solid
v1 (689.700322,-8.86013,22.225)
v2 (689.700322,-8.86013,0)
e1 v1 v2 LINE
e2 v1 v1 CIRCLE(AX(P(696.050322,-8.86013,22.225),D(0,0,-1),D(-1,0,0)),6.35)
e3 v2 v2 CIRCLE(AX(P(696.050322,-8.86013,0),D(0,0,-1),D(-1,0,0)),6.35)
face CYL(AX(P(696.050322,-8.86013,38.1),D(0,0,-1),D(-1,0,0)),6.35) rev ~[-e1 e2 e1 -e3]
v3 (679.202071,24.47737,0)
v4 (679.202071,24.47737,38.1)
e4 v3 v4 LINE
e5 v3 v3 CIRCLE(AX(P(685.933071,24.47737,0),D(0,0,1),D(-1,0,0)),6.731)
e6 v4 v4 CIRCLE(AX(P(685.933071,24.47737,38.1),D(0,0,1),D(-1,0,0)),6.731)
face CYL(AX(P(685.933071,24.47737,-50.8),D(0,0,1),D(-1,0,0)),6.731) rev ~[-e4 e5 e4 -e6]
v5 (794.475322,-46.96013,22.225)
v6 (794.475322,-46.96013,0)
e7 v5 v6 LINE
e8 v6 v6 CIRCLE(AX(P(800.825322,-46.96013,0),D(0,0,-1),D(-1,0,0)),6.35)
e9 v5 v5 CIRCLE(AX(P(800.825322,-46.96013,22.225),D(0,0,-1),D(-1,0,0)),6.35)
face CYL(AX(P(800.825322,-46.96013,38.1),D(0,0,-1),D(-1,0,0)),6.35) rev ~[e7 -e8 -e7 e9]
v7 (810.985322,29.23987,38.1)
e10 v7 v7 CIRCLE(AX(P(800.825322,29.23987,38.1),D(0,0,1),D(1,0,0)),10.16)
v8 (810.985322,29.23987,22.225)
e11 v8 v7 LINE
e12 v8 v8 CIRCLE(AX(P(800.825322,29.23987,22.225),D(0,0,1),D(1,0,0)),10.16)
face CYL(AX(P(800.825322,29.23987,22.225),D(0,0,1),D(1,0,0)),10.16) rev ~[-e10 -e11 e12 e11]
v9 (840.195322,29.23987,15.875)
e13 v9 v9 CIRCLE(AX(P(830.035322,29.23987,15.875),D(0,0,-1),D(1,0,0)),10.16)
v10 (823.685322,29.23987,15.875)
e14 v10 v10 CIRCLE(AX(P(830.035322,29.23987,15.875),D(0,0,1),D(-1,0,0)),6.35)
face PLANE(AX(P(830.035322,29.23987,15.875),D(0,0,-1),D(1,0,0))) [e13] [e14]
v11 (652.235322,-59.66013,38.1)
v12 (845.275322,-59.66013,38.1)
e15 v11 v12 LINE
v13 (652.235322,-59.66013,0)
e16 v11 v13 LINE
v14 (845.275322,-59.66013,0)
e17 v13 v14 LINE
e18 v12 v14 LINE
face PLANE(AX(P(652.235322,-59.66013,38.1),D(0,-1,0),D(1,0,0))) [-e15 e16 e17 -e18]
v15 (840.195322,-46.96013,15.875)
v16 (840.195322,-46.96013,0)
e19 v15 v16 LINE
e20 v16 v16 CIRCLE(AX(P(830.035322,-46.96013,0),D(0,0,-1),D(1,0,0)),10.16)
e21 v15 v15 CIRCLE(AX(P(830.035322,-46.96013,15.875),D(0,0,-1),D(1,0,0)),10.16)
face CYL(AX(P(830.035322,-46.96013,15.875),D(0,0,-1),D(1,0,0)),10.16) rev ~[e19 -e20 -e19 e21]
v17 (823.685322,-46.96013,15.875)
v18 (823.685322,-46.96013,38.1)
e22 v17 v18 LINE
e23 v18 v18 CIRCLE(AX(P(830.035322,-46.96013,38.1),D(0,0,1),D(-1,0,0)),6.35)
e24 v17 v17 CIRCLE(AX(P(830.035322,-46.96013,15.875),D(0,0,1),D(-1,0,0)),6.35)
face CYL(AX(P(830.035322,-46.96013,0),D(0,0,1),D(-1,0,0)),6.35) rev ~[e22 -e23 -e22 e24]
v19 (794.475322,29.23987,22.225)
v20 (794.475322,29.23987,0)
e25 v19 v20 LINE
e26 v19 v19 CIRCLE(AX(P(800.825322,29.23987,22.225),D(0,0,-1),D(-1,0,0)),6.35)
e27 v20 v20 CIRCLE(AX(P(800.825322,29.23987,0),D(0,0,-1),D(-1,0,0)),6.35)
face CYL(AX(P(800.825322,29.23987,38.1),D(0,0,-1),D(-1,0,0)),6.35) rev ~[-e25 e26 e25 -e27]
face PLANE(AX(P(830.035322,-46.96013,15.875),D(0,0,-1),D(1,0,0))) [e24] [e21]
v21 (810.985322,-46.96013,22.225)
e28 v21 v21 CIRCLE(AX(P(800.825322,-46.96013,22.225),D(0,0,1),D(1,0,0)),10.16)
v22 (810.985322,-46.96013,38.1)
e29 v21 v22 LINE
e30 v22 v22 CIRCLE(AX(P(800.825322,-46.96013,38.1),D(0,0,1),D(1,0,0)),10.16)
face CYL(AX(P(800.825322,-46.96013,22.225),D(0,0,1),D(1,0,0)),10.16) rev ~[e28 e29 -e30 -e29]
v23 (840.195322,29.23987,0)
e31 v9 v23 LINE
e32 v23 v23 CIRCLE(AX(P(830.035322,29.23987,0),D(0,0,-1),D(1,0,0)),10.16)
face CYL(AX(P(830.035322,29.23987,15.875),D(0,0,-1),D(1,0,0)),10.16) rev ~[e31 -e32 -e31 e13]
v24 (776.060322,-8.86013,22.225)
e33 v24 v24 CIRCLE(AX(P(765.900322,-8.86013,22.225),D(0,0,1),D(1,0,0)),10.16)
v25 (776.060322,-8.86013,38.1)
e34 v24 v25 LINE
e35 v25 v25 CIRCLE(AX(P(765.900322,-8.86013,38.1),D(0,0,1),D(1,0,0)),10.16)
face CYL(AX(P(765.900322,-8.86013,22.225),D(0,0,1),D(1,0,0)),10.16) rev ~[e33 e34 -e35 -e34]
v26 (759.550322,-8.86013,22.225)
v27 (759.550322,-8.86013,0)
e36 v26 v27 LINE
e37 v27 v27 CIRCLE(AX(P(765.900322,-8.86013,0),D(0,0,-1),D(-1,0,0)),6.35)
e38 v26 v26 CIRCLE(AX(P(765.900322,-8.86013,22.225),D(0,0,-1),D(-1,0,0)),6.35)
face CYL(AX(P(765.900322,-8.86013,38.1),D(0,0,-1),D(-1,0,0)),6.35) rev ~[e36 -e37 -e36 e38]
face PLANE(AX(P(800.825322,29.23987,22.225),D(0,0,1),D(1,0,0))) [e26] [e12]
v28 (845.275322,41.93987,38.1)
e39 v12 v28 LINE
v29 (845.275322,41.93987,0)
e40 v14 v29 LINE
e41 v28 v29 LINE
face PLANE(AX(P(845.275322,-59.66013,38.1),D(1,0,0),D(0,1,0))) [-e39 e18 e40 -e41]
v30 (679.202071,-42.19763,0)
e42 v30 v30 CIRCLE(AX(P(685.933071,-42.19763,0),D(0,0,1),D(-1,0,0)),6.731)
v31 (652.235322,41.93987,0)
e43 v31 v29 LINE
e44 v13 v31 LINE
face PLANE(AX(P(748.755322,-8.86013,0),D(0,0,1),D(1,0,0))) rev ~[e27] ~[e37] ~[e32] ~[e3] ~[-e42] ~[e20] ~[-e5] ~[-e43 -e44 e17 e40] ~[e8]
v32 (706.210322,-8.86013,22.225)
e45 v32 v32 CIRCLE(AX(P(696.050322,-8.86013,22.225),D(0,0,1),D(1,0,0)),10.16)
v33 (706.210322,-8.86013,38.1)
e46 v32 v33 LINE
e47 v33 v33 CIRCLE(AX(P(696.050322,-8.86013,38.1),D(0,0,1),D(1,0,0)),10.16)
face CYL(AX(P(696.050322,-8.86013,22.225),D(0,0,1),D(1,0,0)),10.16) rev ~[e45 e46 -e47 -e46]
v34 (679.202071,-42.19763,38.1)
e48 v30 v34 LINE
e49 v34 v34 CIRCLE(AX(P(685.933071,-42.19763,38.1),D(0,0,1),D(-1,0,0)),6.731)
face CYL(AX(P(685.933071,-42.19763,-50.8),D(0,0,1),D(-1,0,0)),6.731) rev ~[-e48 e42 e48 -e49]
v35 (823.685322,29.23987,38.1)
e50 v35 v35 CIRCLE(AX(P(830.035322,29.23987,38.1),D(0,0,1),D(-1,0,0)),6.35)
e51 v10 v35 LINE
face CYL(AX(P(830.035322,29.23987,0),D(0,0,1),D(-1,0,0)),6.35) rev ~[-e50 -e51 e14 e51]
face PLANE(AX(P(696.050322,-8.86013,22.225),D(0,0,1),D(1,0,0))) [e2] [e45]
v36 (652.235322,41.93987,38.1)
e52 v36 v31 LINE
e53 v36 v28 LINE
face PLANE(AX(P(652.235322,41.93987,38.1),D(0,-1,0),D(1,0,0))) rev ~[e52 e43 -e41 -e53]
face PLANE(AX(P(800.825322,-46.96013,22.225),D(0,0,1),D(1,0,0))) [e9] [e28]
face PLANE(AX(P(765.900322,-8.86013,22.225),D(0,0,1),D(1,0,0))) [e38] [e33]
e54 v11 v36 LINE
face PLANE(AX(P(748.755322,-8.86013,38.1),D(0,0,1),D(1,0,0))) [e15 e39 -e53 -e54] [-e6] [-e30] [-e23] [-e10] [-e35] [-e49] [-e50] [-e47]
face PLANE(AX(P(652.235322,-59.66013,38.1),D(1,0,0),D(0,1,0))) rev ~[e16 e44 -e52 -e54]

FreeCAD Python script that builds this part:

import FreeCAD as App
import Part
import Sketcher

V = App.Vector
Q = App.Units.Quantity

doc = App.newDocument("Part")
body = doc.addObject("PartDesign::Body", "Body")

sketch1 = doc.addObject("Sketcher::SketchObject", "Sketch")
body.addObject(sketch1)
sketch1.AttachmentSupport = (doc.XY_Plane, [""])
sketch1.MapMode = "FlatFace"
sketch1.addGeometry([
    Part.LineSegment(V(652, 42, 0), V(652, -60, 0)),
    Part.LineSegment(V(652, -60, 0), V(845, -60, 0)),
    Part.LineSegment(V(845, -60, 0), V(845, 42, 0)),
    Part.LineSegment(V(845, 42, 0), V(652, 42, 0)),
], False)
sketch1.addConstraint([
    Sketcher.Constraint("Coincident", 0, 2, 1, 1),
    Sketcher.Constraint("Coincident", 1, 2, 2, 1),
    Sketcher.Constraint("Coincident", 2, 2, 3, 1),
    Sketcher.Constraint("Coincident", 3, 2, 0, 1),
    Sketcher.Constraint("Vertical", 0),
    Sketcher.Constraint("Horizontal", 1),
    Sketcher.Constraint("Vertical", 2),
    Sketcher.Constraint("Horizontal", 3),
    Sketcher.Constraint("DistanceY", 0, 2, 0, 1, Q("4 in")),
    Sketcher.Constraint("DistanceX", 1, 1, 1, 2, Q("7.6 in")),
    Sketcher.Constraint("DistanceY", 0, 2, -1, 1, Q("59.66013 mm")),
    Sketcher.Constraint("DistanceX", -1, 1, 0, 2, Q("652.235322 mm")),
])
pad1 = doc.addObject("PartDesign::Pad", "Pad")
body.addObject(pad1)
pad1.Profile = sketch1
pad1.Length = Q("1.5 in")
pad1.Reversed = True

sketch2 = doc.addObject("Sketcher::SketchObject", "Sketch001")
body.addObject(sketch2)
sketch2.AttachmentSupport = (doc.XY_Plane, [""])
sketch2.MapMode = "FlatFace"
sketch2.addGeometry([
    Part.Circle(V(801, 29, 0), V(0, 0, 1), 6),
    Part.Circle(V(801, -47, 0), V(0, 0, 1), 6),
    Part.Circle(V(766, -9, 0), V(0, 0, 1), 6),
    Part.Circle(V(696, -9, 0), V(0, 0, 1), 6),
], False)
sketch2.addConstraint([
    Sketcher.Constraint("Equal", 0, 1),
    Sketcher.Constraint("Equal", 1, 2),
    Sketcher.Constraint("Equal", 2, 3),
    Sketcher.Constraint("Horizontal", 2, 3, 3, 3),
    Sketcher.Constraint("Vertical", 0, 3, 1, 3),
    Sketcher.Constraint("Diameter", 0, Q("0.5 in")),
    Sketcher.Constraint("DistanceY", 1, 3, 0, 3, Q("3 in")),
    Sketcher.Constraint("DistanceY", 2, 3, 0, 3, Q("1.5 in")),
    Sketcher.Constraint("DistanceX", 3, 3, 2, 3, Q("2.75 in")),
    Sketcher.Constraint("DistanceX", 2, 3, 0, 3, Q("1.375 in")),
    Sketcher.Constraint("DistanceY", -1, 1, 0, 3, Q("29.23987 mm")),
    Sketcher.Constraint("DistanceX", -1, 1, 0, 3, Q("800.825322 mm")),
])
doc.recompute()
hole = doc.addObject("PartDesign::Hole", "Hole")
body.addObject(hole)
hole.Profile = sketch2
hole.ThreadType = "None"
hole.Diameter = Q("0.5 in")
hole.DepthType = "Dimension"
hole.Depth = Q("2 in")
hole.DrillPoint = "Angled"
hole.DrillPointAngle = 118
hole.HoleCutType = "Counterbore"
hole.HoleCutDiameter = Q("0.8 in")
hole.HoleCutDepth = Q("0.625 in")
body2 = doc.addObject("PartDesign::Body", "Body001")
doc.recompute()

body.Placement = App.Placement(V(0, 0, 38.1), App.Rotation(V(0, 0, 1), 0))
boolean = doc.addObject("PartDesign::Boolean", "Boolean")
body2.addObject(boolean)
boolean.Type = "Fuse"
boolean.addObjects([body])

sketch3 = doc.addObject("Sketcher::SketchObject", "Sketch002")
body2.addObject(sketch3)
sketch3.AttachmentSupport = (doc.getObject("XY_Plane001"), [""])
sketch3.MapMode = "FlatFace"
sketch3.addGeometry([
    Part.Circle(V(686, 24, 0), V(0, 0, 1), 7),
    Part.Circle(V(686, -42, 0), V(0, 0, 1), 7),
], False)
sketch3.addConstraint([
    Sketcher.Constraint("Equal", 0, 1),
    Sketcher.Constraint("Vertical", 0, 3, 1, 3),
    Sketcher.Constraint("Diameter", 0, Q("0.53 in")),
    Sketcher.Constraint("DistanceY", 1, 3, 0, 3, Q("2.625 in")),
    Sketcher.Constraint("DistanceX", -1, 1, 0, 3, Q("685.933071 mm")),
    Sketcher.Constraint("DistanceY", -1, 1, 0, 3, Q("24.47737 mm")),
])
doc.recompute()
hole2 = doc.addObject("PartDesign::Hole", "Hole001")
body2.addObject(hole2)
hole2.Profile = sketch3
hole2.ThreadType = "None"
hole2.Diameter = Q("0.53 in")
hole2.DepthType = "Dimension"
hole2.Depth = Q("2 in")
hole2.DrillPoint = "Angled"
hole2.DrillPointAngle = 118
hole2.Reversed = True

sketch4 = doc.addObject("Sketcher::SketchObject", "Sketch003")
body2.addObject(sketch4)
sketch4.AttachmentSupport = (doc.getObject("XY_Plane001"), [""])
sketch4.MapMode = "FlatFace"
sketch4.addGeometry([
    Part.Circle(V(830, -47, 0), V(0, 0, 1), 6),
    Part.Circle(V(830, 29, 0), V(0, 0, 1), 6),
], False)
sketch4.addConstraint([
    Sketcher.Constraint("Equal", 0, 1),
    Sketcher.Constraint("Vertical", 0, 3, 1, 3),
    Sketcher.Constraint("Diameter", 0, Q("0.5 in")),
    Sketcher.Constraint("DistanceY", 0, 3, 1, 3, Q("3 in")),
    Sketcher.Constraint("DistanceY", 0, 3, -1, 1, Q("46.96013 mm")),
    Sketcher.Constraint("DistanceX", -1, 1, 0, 3, Q("830.035322 mm")),
])
doc.recompute()
hole3 = doc.addObject("PartDesign::Hole", "Hole002")
body2.addObject(hole3)
hole3.Profile = sketch4
hole3.ThreadType = "None"
hole3.Diameter = Q("0.5 in")
hole3.DepthType = "Dimension"
hole3.Depth = Q("2 in")
hole3.DrillPoint = "Angled"
hole3.DrillPointAngle = 118
hole3.HoleCutType = "Counterbore"
hole3.HoleCutDiameter = Q("0.8 in")
hole3.HoleCutDepth = Q("0.625 in")
hole3.Reversed = True

doc.recompute()
